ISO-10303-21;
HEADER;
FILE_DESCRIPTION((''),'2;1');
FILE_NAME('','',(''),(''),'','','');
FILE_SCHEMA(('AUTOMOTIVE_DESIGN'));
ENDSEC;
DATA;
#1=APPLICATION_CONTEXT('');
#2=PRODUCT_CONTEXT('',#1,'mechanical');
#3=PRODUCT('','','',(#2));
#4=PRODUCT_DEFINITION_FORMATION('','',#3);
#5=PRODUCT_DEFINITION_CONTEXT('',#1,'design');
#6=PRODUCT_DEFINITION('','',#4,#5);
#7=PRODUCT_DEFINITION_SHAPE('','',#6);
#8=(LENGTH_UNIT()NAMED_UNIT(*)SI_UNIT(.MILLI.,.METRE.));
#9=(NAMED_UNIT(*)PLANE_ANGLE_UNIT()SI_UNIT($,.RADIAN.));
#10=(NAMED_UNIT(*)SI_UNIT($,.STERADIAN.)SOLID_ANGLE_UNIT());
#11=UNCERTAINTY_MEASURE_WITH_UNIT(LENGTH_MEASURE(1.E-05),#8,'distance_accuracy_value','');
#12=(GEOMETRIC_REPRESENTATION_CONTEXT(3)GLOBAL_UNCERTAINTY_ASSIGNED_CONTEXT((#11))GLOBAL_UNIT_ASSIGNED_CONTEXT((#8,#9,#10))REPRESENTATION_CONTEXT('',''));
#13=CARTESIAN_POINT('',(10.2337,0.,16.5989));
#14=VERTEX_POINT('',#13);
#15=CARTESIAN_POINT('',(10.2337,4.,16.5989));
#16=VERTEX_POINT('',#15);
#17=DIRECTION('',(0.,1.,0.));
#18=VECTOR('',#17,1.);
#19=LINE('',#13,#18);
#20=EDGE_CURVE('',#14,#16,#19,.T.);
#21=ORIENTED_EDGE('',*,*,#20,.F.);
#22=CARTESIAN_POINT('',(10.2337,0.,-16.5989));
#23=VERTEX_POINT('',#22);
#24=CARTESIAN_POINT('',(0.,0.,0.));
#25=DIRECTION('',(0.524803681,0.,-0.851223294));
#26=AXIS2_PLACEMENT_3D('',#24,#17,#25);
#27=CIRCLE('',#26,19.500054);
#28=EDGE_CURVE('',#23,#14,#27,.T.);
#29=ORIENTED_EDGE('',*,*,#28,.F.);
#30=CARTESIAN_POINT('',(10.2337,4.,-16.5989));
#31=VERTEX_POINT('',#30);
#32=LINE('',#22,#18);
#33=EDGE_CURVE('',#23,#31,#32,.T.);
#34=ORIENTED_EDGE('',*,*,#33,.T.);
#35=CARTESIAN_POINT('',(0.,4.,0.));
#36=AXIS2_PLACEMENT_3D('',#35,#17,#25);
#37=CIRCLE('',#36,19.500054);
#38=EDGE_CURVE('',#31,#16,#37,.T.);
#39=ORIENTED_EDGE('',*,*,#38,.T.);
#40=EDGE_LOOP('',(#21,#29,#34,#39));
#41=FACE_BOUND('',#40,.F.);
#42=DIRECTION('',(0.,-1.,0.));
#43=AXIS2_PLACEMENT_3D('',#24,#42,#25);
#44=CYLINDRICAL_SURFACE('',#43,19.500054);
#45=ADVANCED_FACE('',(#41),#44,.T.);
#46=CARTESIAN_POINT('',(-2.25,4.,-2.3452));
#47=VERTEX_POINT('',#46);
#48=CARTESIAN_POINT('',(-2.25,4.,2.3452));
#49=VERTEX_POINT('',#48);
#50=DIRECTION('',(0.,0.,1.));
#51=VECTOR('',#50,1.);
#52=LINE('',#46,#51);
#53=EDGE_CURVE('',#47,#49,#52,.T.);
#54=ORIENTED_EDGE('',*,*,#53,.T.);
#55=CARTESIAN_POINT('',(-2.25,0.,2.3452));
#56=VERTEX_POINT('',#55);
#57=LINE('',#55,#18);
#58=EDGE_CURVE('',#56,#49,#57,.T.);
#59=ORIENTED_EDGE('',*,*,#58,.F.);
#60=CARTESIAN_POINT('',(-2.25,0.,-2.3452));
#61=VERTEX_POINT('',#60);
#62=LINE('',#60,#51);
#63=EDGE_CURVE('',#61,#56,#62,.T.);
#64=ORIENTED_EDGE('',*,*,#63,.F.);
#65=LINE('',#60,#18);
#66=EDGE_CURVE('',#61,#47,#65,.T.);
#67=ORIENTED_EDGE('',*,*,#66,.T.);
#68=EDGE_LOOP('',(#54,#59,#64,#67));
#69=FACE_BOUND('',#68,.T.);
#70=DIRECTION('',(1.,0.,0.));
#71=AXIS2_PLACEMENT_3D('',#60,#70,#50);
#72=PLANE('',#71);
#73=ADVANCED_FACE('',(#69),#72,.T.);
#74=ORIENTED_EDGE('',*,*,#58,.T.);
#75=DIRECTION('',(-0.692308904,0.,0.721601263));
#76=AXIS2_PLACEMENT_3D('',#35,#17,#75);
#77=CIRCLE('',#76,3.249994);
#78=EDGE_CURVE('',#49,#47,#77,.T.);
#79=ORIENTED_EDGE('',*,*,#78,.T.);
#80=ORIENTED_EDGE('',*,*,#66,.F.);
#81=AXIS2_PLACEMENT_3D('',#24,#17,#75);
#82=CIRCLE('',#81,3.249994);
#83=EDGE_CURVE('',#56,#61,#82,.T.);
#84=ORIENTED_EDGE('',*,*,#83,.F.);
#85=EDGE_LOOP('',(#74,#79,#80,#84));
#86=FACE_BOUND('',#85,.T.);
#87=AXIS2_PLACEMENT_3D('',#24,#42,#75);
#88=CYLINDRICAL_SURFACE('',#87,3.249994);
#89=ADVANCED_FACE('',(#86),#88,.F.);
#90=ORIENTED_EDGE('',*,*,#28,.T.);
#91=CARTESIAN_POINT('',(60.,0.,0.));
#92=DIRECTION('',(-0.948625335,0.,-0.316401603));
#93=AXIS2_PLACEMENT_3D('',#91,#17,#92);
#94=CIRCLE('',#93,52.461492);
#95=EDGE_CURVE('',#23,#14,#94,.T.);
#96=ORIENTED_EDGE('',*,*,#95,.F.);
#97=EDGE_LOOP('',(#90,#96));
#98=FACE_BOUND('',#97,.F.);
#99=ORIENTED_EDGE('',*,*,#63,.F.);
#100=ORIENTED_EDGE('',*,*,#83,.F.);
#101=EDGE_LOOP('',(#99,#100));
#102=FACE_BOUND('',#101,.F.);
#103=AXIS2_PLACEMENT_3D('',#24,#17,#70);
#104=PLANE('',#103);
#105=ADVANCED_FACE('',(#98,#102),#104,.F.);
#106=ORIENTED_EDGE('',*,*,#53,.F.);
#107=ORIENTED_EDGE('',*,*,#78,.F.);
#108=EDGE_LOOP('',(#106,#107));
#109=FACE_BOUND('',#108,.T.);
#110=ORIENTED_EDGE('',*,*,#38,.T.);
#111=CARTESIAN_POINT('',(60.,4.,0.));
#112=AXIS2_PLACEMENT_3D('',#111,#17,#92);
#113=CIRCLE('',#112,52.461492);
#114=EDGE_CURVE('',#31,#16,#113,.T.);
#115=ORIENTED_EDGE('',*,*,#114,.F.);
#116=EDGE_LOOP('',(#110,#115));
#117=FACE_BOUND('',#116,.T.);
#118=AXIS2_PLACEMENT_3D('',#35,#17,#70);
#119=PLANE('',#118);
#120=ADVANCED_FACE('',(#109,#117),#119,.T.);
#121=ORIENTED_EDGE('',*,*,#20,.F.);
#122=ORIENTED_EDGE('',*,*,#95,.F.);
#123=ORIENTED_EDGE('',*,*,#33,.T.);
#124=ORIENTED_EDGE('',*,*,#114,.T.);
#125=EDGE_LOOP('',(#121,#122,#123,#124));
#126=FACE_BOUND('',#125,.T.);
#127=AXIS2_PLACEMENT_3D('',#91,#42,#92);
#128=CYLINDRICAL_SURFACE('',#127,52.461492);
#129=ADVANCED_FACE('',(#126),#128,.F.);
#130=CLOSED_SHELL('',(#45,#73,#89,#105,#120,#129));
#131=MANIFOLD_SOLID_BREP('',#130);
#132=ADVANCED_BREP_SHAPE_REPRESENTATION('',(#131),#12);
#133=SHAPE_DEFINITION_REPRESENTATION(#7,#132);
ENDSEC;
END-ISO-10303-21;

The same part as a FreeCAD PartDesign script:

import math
import FreeCAD as App
import Part
import Sketcher

doc = App.newDocument("Part")
body = doc.addObject("PartDesign::Body", "Body")

# Sketch on XZ plane
sketch1 = body.newObject("Sketcher::SketchObject", "Sketch")
sketch1.AttachmentSupport = (doc.getObject("XZ_Plane"), [""])
sketch1.MapMode = "FlatFace"
sketch1.addGeometry([
    Part.ArcOfCircle(Part.Circle(App.Vector(60, 0, 0), App.Vector(0, 0, 1), 52.461492), math.radians(161.554552), math.radians(198.445448)),
    Part.ArcOfCircle(Part.Circle(App.Vector(0, 0, 0), App.Vector(0, 0, 1), 19.500054), math.radians(58.344972), math.radians(301.655028)),
    Part.LineSegment(App.Vector(-2.25, 2.3452, 0), App.Vector(-2.25, -2.3452, 0)),
    Part.ArcOfCircle(Part.Circle(App.Vector(0, 0, 0), App.Vector(0, 0, 1), 3.249994), math.radians(-133.813158), math.radians(133.813158)),
], False)
sketch1.addConstraint([
    Sketcher.Constraint("Coincident", 0, 1, 1, 1),
    Sketcher.Constraint("Coincident", 1, 2, 0, 2),
    Sketcher.Constraint("Coincident", 2, 1, 3, 2),
    Sketcher.Constraint("Coincident", 3, 1, 2, 2),
    Sketcher.Constraint("Vertical", 2),
    Sketcher.Constraint("Coincident", 1, 3, -1, 1),
    Sketcher.Constraint("Coincident", 3, 3, -1, 1),
    Sketcher.Constraint("PointOnObject", 0, 3, -1),
    Sketcher.Constraint("Radius", 1, 19.5),
    Sketcher.Constraint("Radius", 3, 3.25),
    Sketcher.Constraint("DistanceX", -1, 1, 0, 3, 60.0),
    Sketcher.Constraint("Radius", 0, 52.4615),
    Sketcher.Constraint("DistanceX", 2, 1, -1, 1, 2.25),
])
pad1 = body.newObject("PartDesign::Pad", "Pad")
pad1.Profile = sketch1
pad1.Length = 4
pad1.Reversed = True

doc.recompute()
